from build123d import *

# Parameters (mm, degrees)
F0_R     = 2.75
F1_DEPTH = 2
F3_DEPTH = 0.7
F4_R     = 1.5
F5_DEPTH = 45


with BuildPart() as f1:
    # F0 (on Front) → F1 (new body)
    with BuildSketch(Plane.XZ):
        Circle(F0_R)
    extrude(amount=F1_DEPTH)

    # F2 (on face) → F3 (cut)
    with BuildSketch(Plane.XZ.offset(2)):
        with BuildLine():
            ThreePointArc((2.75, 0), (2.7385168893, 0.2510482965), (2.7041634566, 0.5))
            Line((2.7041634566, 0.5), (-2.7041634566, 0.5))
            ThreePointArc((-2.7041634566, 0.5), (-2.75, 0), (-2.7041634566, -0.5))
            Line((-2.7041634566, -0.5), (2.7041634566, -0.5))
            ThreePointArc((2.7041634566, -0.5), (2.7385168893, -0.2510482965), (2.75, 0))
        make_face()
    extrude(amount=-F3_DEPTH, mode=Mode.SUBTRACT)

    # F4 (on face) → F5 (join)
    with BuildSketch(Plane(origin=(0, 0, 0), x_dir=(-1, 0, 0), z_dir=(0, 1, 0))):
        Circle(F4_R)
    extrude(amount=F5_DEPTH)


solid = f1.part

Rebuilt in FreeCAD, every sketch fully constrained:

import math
import FreeCAD as App
import Part
import Sketcher

V = App.Vector
Q = App.Units.Quantity

doc = App.newDocument("Part")
body = doc.addObject("PartDesign::Body", "Body")

sketch1 = body.newObject("Sketcher::SketchObject", "Sketch")
sketch1.AttachmentSupport = (doc.getObject("XZ_Plane"), [""])
sketch1.MapMode = "FlatFace"
sketch1.addGeometry(Part.Circle(V(0, 0, 0), V(0, 0, 1), 2.75), False)
sketch1.addConstraint([
    Sketcher.Constraint("Coincident", 0, 3, -1, 1),
    Sketcher.Constraint("Diameter", 0, Q("5.5 mm")),
])
pad1 = body.newObject("PartDesign::Pad", "Pad")
pad1.Profile = sketch1
pad1.Length = 2

sketch2 = body.newObject("Sketcher::SketchObject", "Sketch001")
sketch2.AttachmentSupport = (doc.getObject("XZ_Plane"), [""])
sketch2.MapMode = "FlatFace"
sketch2.AttachmentOffset = App.Placement(V(0, 0, 2), App.Rotation())
sketch2.addGeometry([
    Part.ArcOfCircle(Part.Circle(V(0, 0, 0), V(0, 0, 1), 2.75), math.radians(0), math.radians(10.475682)),
    Part.LineSegment(V(2.704163, 0.5, 0), V(-2.704163, 0.5, 0)),
    Part.ArcOfCircle(Part.Circle(V(0, 0, 0), V(0, 0, 1), 2.75), math.radians(169.524318), math.radians(190.475682)),
    Part.LineSegment(V(-2.704163, -0.5, 0), V(2.704163, -0.5, 0)),
    Part.ArcOfCircle(Part.Circle(V(0, 0, 0), V(0, 0, 1), 2.75), math.radians(-10.475682), math.radians(0)),
], False)
sketch2.addConstraint([
    Sketcher.Constraint("Coincident", 0, 2, 1, 1),
    Sketcher.Constraint("Coincident", 1, 2, 2, 1),
    Sketcher.Constraint("Coincident", 2, 2, 3, 1),
    Sketcher.Constraint("Coincident", 3, 2, 4, 1),
    Sketcher.Constraint("Tangent", 4, 2, 0, 1),
    Sketcher.Constraint("Horizontal", 1),
    Sketcher.Constraint("Horizontal", 3),
    Sketcher.Constraint("Coincident", 0, 3, -1, 1),
    Sketcher.Constraint("Coincident", 2, 3, -1, 1),
    Sketcher.Constraint("Equal", 0, 2),
    Sketcher.Constraint("Equal", 2, 4),
    Sketcher.Constraint("PointOnObject", 4, 2, -1),
    Sketcher.Constraint("Vertical", 1, 2, 2, 2),
    Sketcher.Constraint("Radius", 0, Q("2.75 mm")),
    Sketcher.Constraint("DistanceY", 2, 2, 1, 2, Q("1 mm")),
])
pocket1 = body.newObject("PartDesign::Pocket", "Pocket")
pocket1.Profile = sketch2
pocket1.Length = 0.7

sketch3 = body.newObject("Sketcher::SketchObject", "Sketch002")
sketch3.AttachmentSupport = (doc.getObject("XZ_Plane"), [""])
sketch3.MapMode = "FlatFace"
sketch3.addGeometry(Part.Circle(V(0, 0, 0), V(0, 0, 1), 1.5), False)
sketch3.addConstraint([
    Sketcher.Constraint("Coincident", 0, 3, -1, 1),
    Sketcher.Constraint("Diameter", 0, Q("3 mm")),
])
pad2 = body.newObject("PartDesign::Pad", "Pad001")
pad2.Profile = sketch3
pad2.Length = 45
pad2.Reversed = True

doc.recompute()
